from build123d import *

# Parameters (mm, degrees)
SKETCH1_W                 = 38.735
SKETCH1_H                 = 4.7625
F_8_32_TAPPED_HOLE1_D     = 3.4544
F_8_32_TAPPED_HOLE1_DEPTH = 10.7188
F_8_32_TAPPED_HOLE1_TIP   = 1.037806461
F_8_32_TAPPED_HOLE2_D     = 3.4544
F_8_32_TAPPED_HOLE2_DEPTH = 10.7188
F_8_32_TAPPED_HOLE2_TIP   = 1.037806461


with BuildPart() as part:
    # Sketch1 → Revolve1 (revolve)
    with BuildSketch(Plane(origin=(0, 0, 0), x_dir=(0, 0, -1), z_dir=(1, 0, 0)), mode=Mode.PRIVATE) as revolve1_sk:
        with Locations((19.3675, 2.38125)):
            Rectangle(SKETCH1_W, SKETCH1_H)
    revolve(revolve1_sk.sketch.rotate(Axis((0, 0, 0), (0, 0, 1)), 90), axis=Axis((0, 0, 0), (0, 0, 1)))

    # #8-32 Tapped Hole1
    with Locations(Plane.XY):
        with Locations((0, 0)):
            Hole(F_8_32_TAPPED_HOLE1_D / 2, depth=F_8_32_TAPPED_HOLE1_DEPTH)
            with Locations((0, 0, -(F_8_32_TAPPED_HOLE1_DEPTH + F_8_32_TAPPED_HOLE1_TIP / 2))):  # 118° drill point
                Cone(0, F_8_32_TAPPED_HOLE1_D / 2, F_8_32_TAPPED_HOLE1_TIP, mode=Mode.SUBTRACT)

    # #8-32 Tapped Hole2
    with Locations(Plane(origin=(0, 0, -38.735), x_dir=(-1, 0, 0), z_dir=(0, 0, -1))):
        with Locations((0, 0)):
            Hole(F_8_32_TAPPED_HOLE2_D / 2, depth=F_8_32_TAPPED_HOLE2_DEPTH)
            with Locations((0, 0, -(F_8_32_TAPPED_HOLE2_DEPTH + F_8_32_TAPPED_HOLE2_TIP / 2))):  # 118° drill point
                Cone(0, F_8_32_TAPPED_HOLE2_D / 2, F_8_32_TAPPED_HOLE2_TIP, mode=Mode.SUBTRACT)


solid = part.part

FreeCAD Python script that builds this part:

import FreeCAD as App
import Part
import Sketcher
Q = App.Units.Quantity


def add_polygon(sketch, points):
    """Adds a closed chain of lines whose ends are joined by coincident constraints."""
    first, n = sketch.GeometryCount, len(points)
    for a, b in zip(points, points[1:] + points[:1]):
        sketch.addGeometry(Part.LineSegment(App.Vector(*a, 0), App.Vector(*b, 0)), False)
    for i in range(n):
        sketch.addConstraint(Sketcher.Constraint("Coincident", first + i, 2, first + (i + 1) % n, 1))

doc = App.newDocument("Part")
body = doc.addObject("PartDesign::Body", "Body")

# Sketch on YZ plane
sketch1 = body.newObject("Sketcher::SketchObject", "Sketch")
sketch1.AttachmentSupport = (doc.getObject("YZ_Plane"), [""])
sketch1.MapMode = "FlatFace"
add_polygon(sketch1, [(4.8, 0), (0, 0), (0, -38.7), (4.8, -38.7)])  # lines 0-3
sketch1.addConstraint(Sketcher.Constraint("Horizontal", 0))
sketch1.addConstraint(Sketcher.Constraint("Vertical", 1))
sketch1.addConstraint(Sketcher.Constraint("Horizontal", 2))
sketch1.addConstraint(Sketcher.Constraint("Vertical", 3))
sketch1.addConstraint(Sketcher.Constraint("Coincident", 0, 2, -1, 1))
sketch1.addConstraint(Sketcher.Constraint("DistanceX", 0, 2, 0, 1, Q("0.1875 in")))
sketch1.addConstraint(Sketcher.Constraint("DistanceY", 1, 2, 1, 1, Q("1.525 in")))
revolution = body.newObject("PartDesign::Revolution", "Revolution")
revolution.Profile = sketch1
revolution.ReferenceAxis = (sketch1, ["V_Axis"])
revolution.Angle = 360

# Sketch on XY plane
sketch2 = body.newObject("Sketcher::SketchObject", "Sketch001")
sketch2.AttachmentSupport = (doc.getObject("XY_Plane"), [""])
sketch2.MapMode = "FlatFace"
sketch2.addGeometry(Part.Circle(App.Vector(0, 0, 0), App.Vector(0, 0, 1), 1.7), False)
sketch2.addConstraint(Sketcher.Constraint("Coincident", 0, 3, -1, 1))
sketch2.addConstraint(Sketcher.Constraint("Diameter", 0, Q("0.136 in")))
doc.recompute()
hole = body.newObject("PartDesign::Hole", "Hole")
hole.Profile = sketch2
hole.ThreadType = "None"
hole.Diameter = Q("0.136 in")
hole.DepthType = "Dimension"
hole.Depth = Q("0.422 in")
hole.DrillPoint = "Angled"
hole.DrillPointAngle = 118

# Sketch on XY plane
sketch3 = body.newObject("Sketcher::SketchObject", "Sketch002")
sketch3.AttachmentSupport = (doc.getObject("XY_Plane"), [""])
sketch3.MapMode = "FlatFace"
sketch3.AttachmentOffset = App.Placement(App.Vector(0, 0, -1.525 * 25.4), App.Rotation())
sketch3.addGeometry(Part.Circle(App.Vector(0, 0, 0), App.Vector(0, 0, 1), 1.7), False)
sketch3.addConstraint(Sketcher.Constraint("Coincident", 0, 3, -1, 1))
sketch3.addConstraint(Sketcher.Constraint("Diameter", 0, Q("0.136 in")))
doc.recompute()
hole2 = body.newObject("PartDesign::Hole", "Hole001")
hole2.Profile = sketch3
hole2.ThreadType = "None"
hole2.Diameter = Q("0.136 in")
hole2.DepthType = "Dimension"
hole2.Depth = Q("0.422 in")
hole2.DrillPoint = "Angled"
hole2.DrillPointAngle = 118
hole2.Reversed = True

doc.recompute()
